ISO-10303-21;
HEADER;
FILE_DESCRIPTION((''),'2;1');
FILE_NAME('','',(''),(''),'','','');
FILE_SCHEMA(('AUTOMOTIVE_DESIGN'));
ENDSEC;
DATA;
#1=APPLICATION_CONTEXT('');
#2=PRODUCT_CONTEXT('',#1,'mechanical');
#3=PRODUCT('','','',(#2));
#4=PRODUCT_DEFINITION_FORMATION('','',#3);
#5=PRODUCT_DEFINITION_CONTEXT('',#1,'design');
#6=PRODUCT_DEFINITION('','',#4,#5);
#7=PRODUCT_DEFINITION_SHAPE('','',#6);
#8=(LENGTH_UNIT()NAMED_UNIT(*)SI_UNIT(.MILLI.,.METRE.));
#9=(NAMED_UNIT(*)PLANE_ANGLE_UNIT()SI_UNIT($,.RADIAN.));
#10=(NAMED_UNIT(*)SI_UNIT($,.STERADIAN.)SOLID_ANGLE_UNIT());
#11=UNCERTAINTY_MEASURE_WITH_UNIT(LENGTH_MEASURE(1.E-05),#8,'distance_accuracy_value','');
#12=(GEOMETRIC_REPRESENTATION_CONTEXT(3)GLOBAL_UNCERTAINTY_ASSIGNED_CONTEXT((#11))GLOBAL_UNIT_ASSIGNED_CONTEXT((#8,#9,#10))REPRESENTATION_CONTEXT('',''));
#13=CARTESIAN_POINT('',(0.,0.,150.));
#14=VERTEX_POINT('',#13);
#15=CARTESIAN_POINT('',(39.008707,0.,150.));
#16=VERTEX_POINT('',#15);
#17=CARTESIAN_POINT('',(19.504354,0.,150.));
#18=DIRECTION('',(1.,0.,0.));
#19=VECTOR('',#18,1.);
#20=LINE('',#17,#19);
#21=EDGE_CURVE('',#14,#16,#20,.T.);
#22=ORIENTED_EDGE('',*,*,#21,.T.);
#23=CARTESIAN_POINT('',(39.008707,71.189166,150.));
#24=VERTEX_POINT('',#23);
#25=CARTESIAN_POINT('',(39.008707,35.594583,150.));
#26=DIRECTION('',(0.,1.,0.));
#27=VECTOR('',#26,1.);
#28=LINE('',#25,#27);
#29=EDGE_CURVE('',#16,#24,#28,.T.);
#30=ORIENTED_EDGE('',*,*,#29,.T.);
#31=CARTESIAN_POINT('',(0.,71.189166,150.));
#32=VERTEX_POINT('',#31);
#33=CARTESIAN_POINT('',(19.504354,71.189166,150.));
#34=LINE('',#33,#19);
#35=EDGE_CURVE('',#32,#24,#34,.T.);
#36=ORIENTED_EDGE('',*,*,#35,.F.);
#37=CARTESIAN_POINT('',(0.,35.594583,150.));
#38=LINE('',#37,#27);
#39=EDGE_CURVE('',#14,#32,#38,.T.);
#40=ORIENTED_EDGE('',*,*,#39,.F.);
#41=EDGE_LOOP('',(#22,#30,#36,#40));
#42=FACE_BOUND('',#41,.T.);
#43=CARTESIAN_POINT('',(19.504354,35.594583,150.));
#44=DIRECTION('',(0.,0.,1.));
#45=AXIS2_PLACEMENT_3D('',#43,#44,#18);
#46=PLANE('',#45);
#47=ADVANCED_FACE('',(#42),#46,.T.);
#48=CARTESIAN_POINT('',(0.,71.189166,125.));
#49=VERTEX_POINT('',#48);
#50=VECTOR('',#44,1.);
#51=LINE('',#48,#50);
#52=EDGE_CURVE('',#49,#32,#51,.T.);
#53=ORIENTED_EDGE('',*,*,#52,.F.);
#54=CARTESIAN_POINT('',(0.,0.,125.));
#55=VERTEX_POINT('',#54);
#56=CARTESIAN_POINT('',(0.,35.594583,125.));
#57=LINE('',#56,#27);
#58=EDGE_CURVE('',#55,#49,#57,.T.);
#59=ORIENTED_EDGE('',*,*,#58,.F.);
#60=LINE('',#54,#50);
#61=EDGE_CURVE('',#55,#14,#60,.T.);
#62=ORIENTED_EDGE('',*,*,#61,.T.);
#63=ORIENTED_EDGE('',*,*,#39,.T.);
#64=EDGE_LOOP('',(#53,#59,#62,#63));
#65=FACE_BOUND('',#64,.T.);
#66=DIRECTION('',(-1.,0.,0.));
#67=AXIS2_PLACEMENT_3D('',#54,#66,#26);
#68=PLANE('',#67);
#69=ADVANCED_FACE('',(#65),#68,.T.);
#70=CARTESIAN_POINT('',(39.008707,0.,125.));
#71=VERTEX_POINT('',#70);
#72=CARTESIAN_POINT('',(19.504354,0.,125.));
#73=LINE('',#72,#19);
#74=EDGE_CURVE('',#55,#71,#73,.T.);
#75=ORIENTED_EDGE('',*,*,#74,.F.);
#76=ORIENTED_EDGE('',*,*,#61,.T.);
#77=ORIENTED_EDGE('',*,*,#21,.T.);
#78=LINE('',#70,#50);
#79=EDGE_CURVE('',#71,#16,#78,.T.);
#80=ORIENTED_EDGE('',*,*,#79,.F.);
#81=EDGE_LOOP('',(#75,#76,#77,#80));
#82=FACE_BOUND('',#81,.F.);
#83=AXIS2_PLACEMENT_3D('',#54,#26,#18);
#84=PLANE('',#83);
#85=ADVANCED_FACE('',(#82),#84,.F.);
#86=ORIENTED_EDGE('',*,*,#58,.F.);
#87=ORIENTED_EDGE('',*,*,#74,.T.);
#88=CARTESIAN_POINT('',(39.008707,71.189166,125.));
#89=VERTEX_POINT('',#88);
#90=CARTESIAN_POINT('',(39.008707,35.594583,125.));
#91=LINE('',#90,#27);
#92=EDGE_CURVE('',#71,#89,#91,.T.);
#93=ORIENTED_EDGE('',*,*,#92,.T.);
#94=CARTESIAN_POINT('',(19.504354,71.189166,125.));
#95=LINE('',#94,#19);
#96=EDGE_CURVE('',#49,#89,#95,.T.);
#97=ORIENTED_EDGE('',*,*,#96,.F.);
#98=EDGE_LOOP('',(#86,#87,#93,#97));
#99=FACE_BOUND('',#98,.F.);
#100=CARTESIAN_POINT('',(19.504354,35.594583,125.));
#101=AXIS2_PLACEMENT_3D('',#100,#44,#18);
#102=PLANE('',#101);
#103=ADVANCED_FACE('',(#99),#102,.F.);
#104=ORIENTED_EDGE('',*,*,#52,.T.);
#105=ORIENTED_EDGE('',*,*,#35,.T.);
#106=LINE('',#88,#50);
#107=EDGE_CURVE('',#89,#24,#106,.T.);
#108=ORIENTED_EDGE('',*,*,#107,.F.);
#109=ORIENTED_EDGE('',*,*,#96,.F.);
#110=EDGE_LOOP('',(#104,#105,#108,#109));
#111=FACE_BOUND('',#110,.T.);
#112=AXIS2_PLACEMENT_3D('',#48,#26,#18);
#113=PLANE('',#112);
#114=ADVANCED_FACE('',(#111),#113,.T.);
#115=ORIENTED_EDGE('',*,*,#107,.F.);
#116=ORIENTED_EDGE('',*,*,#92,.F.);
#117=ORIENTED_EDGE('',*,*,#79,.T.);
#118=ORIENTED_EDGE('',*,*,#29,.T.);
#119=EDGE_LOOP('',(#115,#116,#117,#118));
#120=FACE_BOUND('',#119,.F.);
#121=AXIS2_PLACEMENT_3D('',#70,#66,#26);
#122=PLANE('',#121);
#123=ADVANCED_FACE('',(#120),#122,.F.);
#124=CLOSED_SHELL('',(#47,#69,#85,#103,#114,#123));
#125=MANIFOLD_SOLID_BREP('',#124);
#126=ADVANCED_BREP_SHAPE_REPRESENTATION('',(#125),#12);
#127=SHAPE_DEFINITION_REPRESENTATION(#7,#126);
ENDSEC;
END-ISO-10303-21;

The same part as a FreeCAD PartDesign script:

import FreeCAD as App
import Part
import Sketcher
from FreeCAD import Vector


def add_polygon(sketch, points):
    """Adds a closed chain of lines whose ends are joined by coincident constraints."""
    first, n = sketch.GeometryCount, len(points)
    for a, b in zip(points, points[1:] + points[:1]):
        sketch.addGeometry(Part.LineSegment(App.Vector(*a, 0), App.Vector(*b, 0)), False)
    for i in range(n):
        sketch.addConstraint(Sketcher.Constraint("Coincident", first + i, 2, first + (i + 1) % n, 1))

doc = App.newDocument("Part")
body = doc.addObject("PartDesign::Body", "Body")

# Sketch on XY plane
sketch1 = doc.addObject("Sketcher::SketchObject", "Sketch")
body.addObject(sketch1)
sketch1.AttachmentSupport = (doc.XY_Plane, [""])
sketch1.MapMode = "FlatFace"
sketch1.AttachmentOffset = App.Placement(Vector(0, 0, 125), App.Rotation())
add_polygon(sketch1, [(0, 71), (0, 0), (39, 0), (39, 71)])  # lines 0-3
sketch1.addConstraint(Sketcher.Constraint("Vertical", 0))
sketch1.addConstraint(Sketcher.Constraint("Horizontal", 1))
sketch1.addConstraint(Sketcher.Constraint("Vertical", 2))
sketch1.addConstraint(Sketcher.Constraint("Horizontal", 3))
sketch1.addConstraint(Sketcher.Constraint("Coincident", 0, 2, -1, 1))
sketch1.addConstraint(Sketcher.Constraint("DistanceX", 1, 1, 1, 2, 39.008707))
sketch1.addConstraint(Sketcher.Constraint("DistanceY", 0, 2, 0, 1, 71.189165))
pad1 = doc.addObject("PartDesign::Pad", "Pad")
body.addObject(pad1)
pad1.Profile = sketch1
pad1.Length = 25

doc.recompute()
